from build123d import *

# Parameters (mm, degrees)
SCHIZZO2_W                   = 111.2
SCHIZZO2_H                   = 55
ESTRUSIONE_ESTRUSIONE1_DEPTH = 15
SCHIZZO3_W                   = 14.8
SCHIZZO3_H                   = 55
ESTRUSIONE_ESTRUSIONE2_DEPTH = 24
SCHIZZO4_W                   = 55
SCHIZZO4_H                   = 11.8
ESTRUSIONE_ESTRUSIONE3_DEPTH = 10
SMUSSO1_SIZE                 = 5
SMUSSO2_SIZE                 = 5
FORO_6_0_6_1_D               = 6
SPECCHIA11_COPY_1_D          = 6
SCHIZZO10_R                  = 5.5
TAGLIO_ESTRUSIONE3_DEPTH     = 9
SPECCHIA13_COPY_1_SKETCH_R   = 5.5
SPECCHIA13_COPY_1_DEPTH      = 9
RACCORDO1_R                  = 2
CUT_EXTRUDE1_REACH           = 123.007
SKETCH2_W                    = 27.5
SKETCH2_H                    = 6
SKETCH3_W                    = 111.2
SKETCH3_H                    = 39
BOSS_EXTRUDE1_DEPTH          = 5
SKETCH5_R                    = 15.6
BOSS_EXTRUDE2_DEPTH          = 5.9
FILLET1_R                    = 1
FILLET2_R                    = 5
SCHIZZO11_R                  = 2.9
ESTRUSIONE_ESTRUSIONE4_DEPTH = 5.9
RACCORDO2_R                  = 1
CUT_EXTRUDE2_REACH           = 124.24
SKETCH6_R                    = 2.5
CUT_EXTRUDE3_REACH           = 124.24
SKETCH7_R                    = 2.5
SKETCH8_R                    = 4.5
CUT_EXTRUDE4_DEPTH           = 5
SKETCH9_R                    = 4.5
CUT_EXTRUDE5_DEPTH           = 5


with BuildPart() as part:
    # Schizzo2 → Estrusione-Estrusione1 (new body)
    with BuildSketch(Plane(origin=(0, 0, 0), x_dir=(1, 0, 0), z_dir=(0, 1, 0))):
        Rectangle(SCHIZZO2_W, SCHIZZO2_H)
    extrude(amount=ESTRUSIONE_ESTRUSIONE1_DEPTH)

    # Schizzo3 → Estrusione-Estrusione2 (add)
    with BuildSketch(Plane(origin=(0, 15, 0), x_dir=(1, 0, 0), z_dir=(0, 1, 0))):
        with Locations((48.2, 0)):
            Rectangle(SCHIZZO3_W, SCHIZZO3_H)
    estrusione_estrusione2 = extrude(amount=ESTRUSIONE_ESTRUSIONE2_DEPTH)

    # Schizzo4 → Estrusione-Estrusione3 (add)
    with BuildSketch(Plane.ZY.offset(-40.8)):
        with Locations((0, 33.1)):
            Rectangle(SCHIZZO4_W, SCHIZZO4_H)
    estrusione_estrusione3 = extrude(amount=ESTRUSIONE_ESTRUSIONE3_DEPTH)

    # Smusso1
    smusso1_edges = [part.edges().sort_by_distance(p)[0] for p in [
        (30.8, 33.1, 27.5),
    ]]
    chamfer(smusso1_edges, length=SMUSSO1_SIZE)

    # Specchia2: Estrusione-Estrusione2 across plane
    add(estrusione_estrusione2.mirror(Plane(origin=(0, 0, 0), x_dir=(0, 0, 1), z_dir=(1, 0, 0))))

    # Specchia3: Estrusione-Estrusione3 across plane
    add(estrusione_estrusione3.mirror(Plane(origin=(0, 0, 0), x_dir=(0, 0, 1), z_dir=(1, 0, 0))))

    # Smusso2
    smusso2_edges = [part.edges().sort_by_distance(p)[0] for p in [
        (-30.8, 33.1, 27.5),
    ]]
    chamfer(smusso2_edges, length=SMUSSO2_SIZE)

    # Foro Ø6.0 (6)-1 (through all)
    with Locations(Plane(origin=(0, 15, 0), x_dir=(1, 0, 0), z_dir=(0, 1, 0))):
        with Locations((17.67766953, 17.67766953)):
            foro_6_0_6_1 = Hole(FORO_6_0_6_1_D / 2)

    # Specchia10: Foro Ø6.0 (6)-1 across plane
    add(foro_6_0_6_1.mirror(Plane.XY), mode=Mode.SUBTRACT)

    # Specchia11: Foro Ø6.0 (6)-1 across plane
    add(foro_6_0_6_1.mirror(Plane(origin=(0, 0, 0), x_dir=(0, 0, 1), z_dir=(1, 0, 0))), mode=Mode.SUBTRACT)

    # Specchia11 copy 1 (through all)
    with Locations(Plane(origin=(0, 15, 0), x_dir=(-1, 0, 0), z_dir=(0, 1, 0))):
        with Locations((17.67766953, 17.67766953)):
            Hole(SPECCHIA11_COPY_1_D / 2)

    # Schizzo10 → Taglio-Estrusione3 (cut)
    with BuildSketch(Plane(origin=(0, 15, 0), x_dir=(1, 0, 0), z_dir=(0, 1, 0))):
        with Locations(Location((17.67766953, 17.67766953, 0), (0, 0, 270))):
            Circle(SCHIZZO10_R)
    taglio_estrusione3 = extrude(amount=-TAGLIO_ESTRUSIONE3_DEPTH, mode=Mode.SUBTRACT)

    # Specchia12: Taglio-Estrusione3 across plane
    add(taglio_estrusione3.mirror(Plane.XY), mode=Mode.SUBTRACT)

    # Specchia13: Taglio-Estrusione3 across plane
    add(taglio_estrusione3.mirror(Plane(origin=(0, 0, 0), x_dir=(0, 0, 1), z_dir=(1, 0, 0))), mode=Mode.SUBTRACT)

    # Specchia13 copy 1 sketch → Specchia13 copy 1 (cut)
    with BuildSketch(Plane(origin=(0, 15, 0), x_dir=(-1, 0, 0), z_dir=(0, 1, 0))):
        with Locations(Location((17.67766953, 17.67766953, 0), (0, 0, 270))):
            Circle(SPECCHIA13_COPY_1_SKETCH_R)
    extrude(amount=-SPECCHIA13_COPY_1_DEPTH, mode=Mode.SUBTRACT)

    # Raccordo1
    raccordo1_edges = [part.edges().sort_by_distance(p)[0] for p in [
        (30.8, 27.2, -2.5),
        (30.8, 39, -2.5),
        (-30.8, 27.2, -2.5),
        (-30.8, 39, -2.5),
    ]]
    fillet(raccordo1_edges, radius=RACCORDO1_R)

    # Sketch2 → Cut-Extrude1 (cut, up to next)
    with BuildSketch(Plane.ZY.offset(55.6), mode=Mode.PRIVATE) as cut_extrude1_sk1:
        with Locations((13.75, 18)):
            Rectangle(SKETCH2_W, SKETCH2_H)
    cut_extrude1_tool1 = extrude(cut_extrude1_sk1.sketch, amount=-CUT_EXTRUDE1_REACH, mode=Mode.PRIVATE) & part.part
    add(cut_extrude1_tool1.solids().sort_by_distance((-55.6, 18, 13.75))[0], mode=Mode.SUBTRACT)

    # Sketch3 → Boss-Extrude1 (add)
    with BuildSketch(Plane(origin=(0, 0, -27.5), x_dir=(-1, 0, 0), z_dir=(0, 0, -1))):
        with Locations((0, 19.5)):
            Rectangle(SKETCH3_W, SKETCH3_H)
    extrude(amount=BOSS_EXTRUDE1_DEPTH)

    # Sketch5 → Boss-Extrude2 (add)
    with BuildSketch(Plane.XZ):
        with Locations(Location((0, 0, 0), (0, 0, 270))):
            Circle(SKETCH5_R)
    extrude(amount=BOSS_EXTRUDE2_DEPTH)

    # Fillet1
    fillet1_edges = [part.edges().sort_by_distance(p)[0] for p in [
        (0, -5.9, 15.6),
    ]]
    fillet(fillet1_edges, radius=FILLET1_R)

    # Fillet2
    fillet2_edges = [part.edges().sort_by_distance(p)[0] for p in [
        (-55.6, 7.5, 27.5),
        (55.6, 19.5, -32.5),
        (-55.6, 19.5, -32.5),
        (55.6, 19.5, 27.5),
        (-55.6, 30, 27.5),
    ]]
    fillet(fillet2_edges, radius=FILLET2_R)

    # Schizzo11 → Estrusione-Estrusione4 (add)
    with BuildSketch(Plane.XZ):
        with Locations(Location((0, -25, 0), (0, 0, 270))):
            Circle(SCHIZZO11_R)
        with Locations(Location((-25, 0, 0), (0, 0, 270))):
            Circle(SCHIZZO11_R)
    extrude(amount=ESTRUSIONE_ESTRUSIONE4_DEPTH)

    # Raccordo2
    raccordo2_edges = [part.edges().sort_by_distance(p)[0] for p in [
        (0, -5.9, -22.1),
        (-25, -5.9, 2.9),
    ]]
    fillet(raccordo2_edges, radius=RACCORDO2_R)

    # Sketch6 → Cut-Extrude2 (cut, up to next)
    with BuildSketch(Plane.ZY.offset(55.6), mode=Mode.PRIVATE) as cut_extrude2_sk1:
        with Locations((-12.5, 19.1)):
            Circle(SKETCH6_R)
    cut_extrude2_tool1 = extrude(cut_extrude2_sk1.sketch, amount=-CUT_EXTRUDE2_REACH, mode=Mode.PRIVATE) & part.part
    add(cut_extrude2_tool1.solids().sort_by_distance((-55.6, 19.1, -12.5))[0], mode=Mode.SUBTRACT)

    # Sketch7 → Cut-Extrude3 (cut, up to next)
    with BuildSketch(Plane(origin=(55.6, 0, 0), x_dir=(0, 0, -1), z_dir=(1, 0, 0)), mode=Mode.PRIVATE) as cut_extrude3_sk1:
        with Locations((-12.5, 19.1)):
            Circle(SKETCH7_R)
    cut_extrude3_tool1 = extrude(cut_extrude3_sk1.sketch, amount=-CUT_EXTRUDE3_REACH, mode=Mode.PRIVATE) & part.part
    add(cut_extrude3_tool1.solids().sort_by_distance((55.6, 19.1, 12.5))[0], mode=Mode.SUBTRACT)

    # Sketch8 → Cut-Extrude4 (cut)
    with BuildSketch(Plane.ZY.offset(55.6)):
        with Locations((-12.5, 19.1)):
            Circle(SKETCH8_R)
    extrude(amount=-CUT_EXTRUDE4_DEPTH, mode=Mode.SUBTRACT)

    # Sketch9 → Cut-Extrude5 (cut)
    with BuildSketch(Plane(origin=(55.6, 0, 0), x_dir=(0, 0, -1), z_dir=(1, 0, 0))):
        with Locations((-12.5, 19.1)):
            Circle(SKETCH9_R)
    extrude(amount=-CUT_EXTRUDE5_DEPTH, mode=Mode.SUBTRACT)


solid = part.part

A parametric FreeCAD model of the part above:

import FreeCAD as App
import Part
import Sketcher

V = App.Vector


def edges_at(feature, points):
    """Names of the edges that pass closest to the given points."""
    edges = feature.Shape.Edges
    near = lambda p: min(range(len(edges)), key=lambda i: edges[i].distToShape(Part.Vertex(*p))[0])
    return sorted({f"Edge{near(p) + 1}" for p in points})


def add_polygon(sketch, points):
    """Adds a closed chain of lines whose ends are joined by coincident constraints."""
    first, n = sketch.GeometryCount, len(points)
    for a, b in zip(points, points[1:] + points[:1]):
        sketch.addGeometry(Part.LineSegment(App.Vector(*a, 0), App.Vector(*b, 0)), False)
    for i in range(n):
        sketch.addConstraint(Sketcher.Constraint("Coincident", first + i, 2, first + (i + 1) % n, 1))

doc = App.newDocument("Part")
body = doc.addObject("PartDesign::Body", "Body")

# Sketch on XZ plane
sketch1 = body.newObject("Sketcher::SketchObject", "Sketch")
sketch1.AttachmentSupport = (doc.getObject("XZ_Plane"), [""])
sketch1.MapMode = "FlatFace"
add_polygon(sketch1, [(-56, -28), (-56, 28), (56, 28), (56, -28)])  # lines 0-3
sketch1.addConstraint(Sketcher.Constraint("Vertical", 0))
sketch1.addConstraint(Sketcher.Constraint("Horizontal", 1))
sketch1.addConstraint(Sketcher.Constraint("Vertical", 2))
sketch1.addConstraint(Sketcher.Constraint("Horizontal", 3))
sketch1.addConstraint(Sketcher.Constraint("Symmetric", 0, 2, 2, 2, -1, 1))
sketch1.addConstraint(Sketcher.Constraint("DistanceY", 0, 1, 0, 2, 55.0))
sketch1.addConstraint(Sketcher.Constraint("DistanceX", 1, 1, 1, 2, 111.2))
pad1 = body.newObject("PartDesign::Pad", "Pad")
pad1.Profile = sketch1
pad1.Length = 15
pad1.Reversed = True

# Sketch on XZ plane
sketch2 = body.newObject("Sketcher::SketchObject", "Sketch001")
sketch2.AttachmentSupport = (doc.getObject("XZ_Plane"), [""])
sketch2.MapMode = "FlatFace"
sketch2.AttachmentOffset = App.Placement(V(0, 0, -15), App.Rotation())
add_polygon(sketch2, [(41, -28), (41, 28), (56, 28), (56, -28)])  # lines 0-3
sketch2.addConstraint(Sketcher.Constraint("Vertical", 0))
sketch2.addConstraint(Sketcher.Constraint("Horizontal", 1))
sketch2.addConstraint(Sketcher.Constraint("Vertical", 2))
sketch2.addConstraint(Sketcher.Constraint("Horizontal", 3))
sketch2.addConstraint(Sketcher.Constraint("DistanceY", 0, 1, 0, 2, 55.0))
sketch2.addConstraint(Sketcher.Constraint("DistanceX", 1, 1, 1, 2, 14.8))
sketch2.addConstraint(Sketcher.Constraint("DistanceX", -1, 1, 0, 2, 40.8))
sketch2.addConstraint(Sketcher.Constraint("DistanceY", -1, 1, 0, 2, 27.5))
pad2 = body.newObject("PartDesign::Pad", "Pad001")
pad2.Profile = sketch2
pad2.Length = 24
pad2.Reversed = True

# Sketch on YZ plane
sketch3 = body.newObject("Sketcher::SketchObject", "Sketch002")
sketch3.AttachmentSupport = (doc.getObject("YZ_Plane"), [""])
sketch3.MapMode = "FlatFace"
sketch3.AttachmentOffset = App.Placement(V(0, 0, 40.8), App.Rotation())
add_polygon(sketch3, [(39, -28), (27, -28), (27, 28), (39, 28)])  # lines 0-3
sketch3.addConstraint(Sketcher.Constraint("Horizontal", 0))
sketch3.addConstraint(Sketcher.Constraint("Vertical", 1))
sketch3.addConstraint(Sketcher.Constraint("Horizontal", 2))
sketch3.addConstraint(Sketcher.Constraint("Vertical", 3))
sketch3.addConstraint(Sketcher.Constraint("DistanceY", 1, 1, 1, 2, 55.0))
sketch3.addConstraint(Sketcher.Constraint("DistanceX", 0, 2, 0, 1, 11.8))
sketch3.addConstraint(Sketcher.Constraint("DistanceX", -1, 1, 2, 2, 39.0))
sketch3.addConstraint(Sketcher.Constraint("DistanceY", 0, 2, -1, 1, 27.5))
pad3 = body.newObject("PartDesign::Pad", "Pad002")
pad3.Profile = sketch3
pad3.Length = 10
pad3.Reversed = True
doc.recompute()

chamfer = body.newObject("PartDesign::Chamfer", "Chamfer")
chamfer.Base = (pad3, edges_at(pad3, [(30.8, 33.1, 27.5)]))
chamfer.Size = 5
doc.recompute()

mirrored = body.newObject("PartDesign::Mirrored", "Mirrored")
mirrored.Originals = [pad2]
mirrored.MirrorPlane = (doc.getObject("YZ_Plane"), [""])
body.Tip = mirrored
doc.recompute()

mirrored2 = body.newObject("PartDesign::Mirrored", "Mirrored001")
mirrored2.Originals = [pad3]
mirrored2.MirrorPlane = (doc.getObject("YZ_Plane"), [""])
body.Tip = mirrored2
doc.recompute()

chamfer2 = body.newObject("PartDesign::Chamfer", "Chamfer001")
chamfer2.Base = (mirrored2, edges_at(mirrored2, [(-30.8, 33.1, 27.5)]))
chamfer2.Size = 5

# Sketch on XZ plane
sketch4 = body.newObject("Sketcher::SketchObject", "Sketch003")
sketch4.AttachmentSupport = (doc.getObject("XZ_Plane"), [""])
sketch4.MapMode = "FlatFace"
sketch4.AttachmentOffset = App.Placement(V(0, 0, -15), App.Rotation())
sketch4.addGeometry(Part.Circle(V(17.7, -17.7, 0), V(0, 0, 1), 3), False)
sketch4.addConstraint(Sketcher.Constraint("Diameter", 0, 6.0))
sketch4.addConstraint(Sketcher.Constraint("DistanceX", -1, 1, 0, 3, 17.67767))
sketch4.addConstraint(Sketcher.Constraint("DistanceY", 0, 3, -1, 1, 17.67767))
doc.recompute()
hole = body.newObject("PartDesign::Hole", "Hole")
hole.Profile = sketch4
hole.ThreadType = "None"
hole.Diameter = 6
hole.DepthType = "ThroughAll"
hole.Reversed = True
doc.recompute()

mirrored3 = body.newObject("PartDesign::Mirrored", "Mirrored002")
mirrored3.Originals = [hole]
mirrored3.MirrorPlane = (doc.getObject("XY_Plane"), [""])
body.Tip = mirrored3
doc.recompute()

mirrored4 = body.newObject("PartDesign::Mirrored", "Mirrored003")
mirrored4.Originals = [hole]
mirrored4.MirrorPlane = (doc.getObject("YZ_Plane"), [""])
body.Tip = mirrored4

# Sketch on XZ plane
sketch5 = body.newObject("Sketcher::SketchObject", "Sketch004")
sketch5.AttachmentSupport = (doc.getObject("XZ_Plane"), [""])
sketch5.MapMode = "FlatFace"
sketch5.AttachmentOffset = App.Placement(V(0, 0, -15), App.Rotation())
sketch5.addGeometry(Part.Circle(V(-17.7, 17.7, 0), V(0, 0, 1), 3), False)
sketch5.addConstraint(Sketcher.Constraint("Diameter", 0, 6.0))
sketch5.addConstraint(Sketcher.Constraint("DistanceX", 0, 3, -1, 1, 17.67767))
sketch5.addConstraint(Sketcher.Constraint("DistanceY", -1, 1, 0, 3, 17.67767))
doc.recompute()
hole2 = body.newObject("PartDesign::Hole", "Hole001")
hole2.Profile = sketch5
hole2.ThreadType = "None"
hole2.Diameter = 6
hole2.DepthType = "ThroughAll"
hole2.Reversed = True

# Sketch on XZ plane
sketch6 = body.newObject("Sketcher::SketchObject", "Sketch005")
sketch6.AttachmentSupport = (doc.getObject("XZ_Plane"), [""])
sketch6.MapMode = "FlatFace"
sketch6.AttachmentOffset = App.Placement(V(0, 0, -15), App.Rotation())
sketch6.addGeometry(Part.Circle(V(18, -18, 0), V(0, 0, 1), 6), False)
sketch6.addConstraint(Sketcher.Constraint("Diameter", 0, 11.0))
sketch6.addConstraint(Sketcher.Constraint("DistanceX", -1, 1, 0, 3, 17.67767))
sketch6.addConstraint(Sketcher.Constraint("DistanceY", 0, 3, -1, 1, 17.67767))
pocket1 = body.newObject("PartDesign::Pocket", "Pocket")
pocket1.Profile = sketch6
pocket1.Length = 9
pocket1.Reversed = True
doc.recompute()

mirrored5 = body.newObject("PartDesign::Mirrored", "Mirrored004")
mirrored5.Originals = [pocket1]
mirrored5.MirrorPlane = (doc.getObject("XY_Plane"), [""])
body.Tip = mirrored5
doc.recompute()

mirrored6 = body.newObject("PartDesign::Mirrored", "Mirrored005")
mirrored6.Originals = [pocket1]
mirrored6.MirrorPlane = (doc.getObject("YZ_Plane"), [""])
body.Tip = mirrored6

# Sketch on XZ plane
sketch7 = body.newObject("Sketcher::SketchObject", "Sketch006")
sketch7.AttachmentSupport = (doc.getObject("XZ_Plane"), [""])
sketch7.MapMode = "FlatFace"
sketch7.AttachmentOffset = App.Placement(V(0, 0, -15), App.Rotation())
sketch7.addGeometry(Part.Circle(V(-18, 18, 0), V(0, 0, 1), 6), False)
sketch7.addConstraint(Sketcher.Constraint("Diameter", 0, 11.0))
sketch7.addConstraint(Sketcher.Constraint("DistanceX", 0, 3, -1, 1, 17.67767))
sketch7.addConstraint(Sketcher.Constraint("DistanceY", -1, 1, 0, 3, 17.67767))
pocket2 = body.newObject("PartDesign::Pocket", "Pocket001")
pocket2.Profile = sketch7
pocket2.Length = 9
pocket2.Reversed = True
doc.recompute()

fillet = body.newObject("PartDesign::Fillet", "Fillet")
fillet.Base = (pocket2, edges_at(pocket2, [
    (30.8, 27.2, -2.5),
    (30.8, 39, -2.5),
    (-30.8, 27.2, -2.5),
    (-30.8, 39, -2.5),
]))
fillet.Radius = 2

# Sketch on YZ plane
sketch8 = body.newObject("Sketcher::SketchObject", "Sketch007")
sketch8.AttachmentSupport = (doc.getObject("YZ_Plane"), [""])
sketch8.MapMode = "FlatFace"
sketch8.AttachmentOffset = App.Placement(V(0, 0, -55.6), App.Rotation())
add_polygon(sketch8, [(21, 0), (15, 0), (15, 28), (21, 28)])  # lines 0-3
sketch8.addConstraint(Sketcher.Constraint("Horizontal", 0))
sketch8.addConstraint(Sketcher.Constraint("Vertical", 1))
sketch8.addConstraint(Sketcher.Constraint("Horizontal", 2))
sketch8.addConstraint(Sketcher.Constraint("Vertical", 3))
sketch8.addConstraint(Sketcher.Constraint("PointOnObject", 0, 2, -1))
sketch8.addConstraint(Sketcher.Constraint("DistanceX", 0, 2, 0, 1, 6.0))
sketch8.addConstraint(Sketcher.Constraint("DistanceY", 1, 1, 1, 2, 27.5))
sketch8.addConstraint(Sketcher.Constraint("DistanceX", -1, 1, 0, 2, 15.0))
pocket3 = body.newObject("PartDesign::Pocket", "Pocket002")
pocket3.Profile = sketch8
pocket3.Type = "UpToFirst"
pocket3.Reversed = True

# Sketch on XY plane
sketch9 = body.newObject("Sketcher::SketchObject", "Sketch008")
sketch9.AttachmentSupport = (doc.getObject("XY_Plane"), [""])
sketch9.MapMode = "FlatFace"
sketch9.AttachmentOffset = App.Placement(V(0, 0, -27.5), App.Rotation())
add_polygon(sketch9, [(56, 39), (56, 0), (-56, 0), (-56, 39)])  # lines 0-3
sketch9.addConstraint(Sketcher.Constraint("Vertical", 0))
sketch9.addConstraint(Sketcher.Constraint("Horizontal", 1))
sketch9.addConstraint(Sketcher.Constraint("Vertical", 2))
sketch9.addConstraint(Sketcher.Constraint("Horizontal", 3))
sketch9.addConstraint(Sketcher.Constraint("Symmetric", 0, 2, 1, 2, -1, 1))
sketch9.addConstraint(Sketcher.Constraint("DistanceY", 0, 2, 0, 1, 39.0))
sketch9.addConstraint(Sketcher.Constraint("DistanceX", 1, 2, 1, 1, 111.2))
pad4 = body.newObject("PartDesign::Pad", "Pad003")
pad4.Profile = sketch9
pad4.Length = 5
pad4.Reversed = True

# Sketch on XZ plane
sketch10 = body.newObject("Sketcher::SketchObject", "Sketch009")
sketch10.AttachmentSupport = (doc.getObject("XZ_Plane"), [""])
sketch10.MapMode = "FlatFace"
sketch10.addGeometry(Part.Circle(V(0, 0, 0), V(0, 0, 1), 16), False)
sketch10.addConstraint(Sketcher.Constraint("Coincident", 0, 3, -1, 1))
sketch10.addConstraint(Sketcher.Constraint("Diameter", 0, 31.2))
pad5 = body.newObject("PartDesign::Pad", "Pad004")
pad5.Profile = sketch10
pad5.Length = 5.9
doc.recompute()

fillet2 = body.newObject("PartDesign::Fillet", "Fillet001")
fillet2.Base = (pad5, edges_at(pad5, [(0, -5.9, 15.6)]))
fillet2.Radius = 1
doc.recompute()

fillet3 = body.newObject("PartDesign::Fillet", "Fillet002")
fillet3.Base = (fillet2, edges_at(fillet2, [
    (-55.6, 7.5, 27.5),
    (55.6, 19.5, -32.5),
    (-55.6, 19.5, -32.5),
    (55.6, 19.5, 27.5),
    (-55.6, 30, 27.5),
]))
fillet3.Radius = 5

# Sketch on XZ plane
sketch11 = body.newObject("Sketcher::SketchObject", "Sketch010")
sketch11.AttachmentSupport = (doc.getObject("XZ_Plane"), [""])
sketch11.MapMode = "FlatFace"
sketch11.addGeometry(Part.Circle(V(0, -25, 0), V(0, 0, 1), 2.9), False)
sketch11.addGeometry(Part.Circle(V(-25, 0, 0), V(0, 0, 1), 2.9), False)
sketch11.addConstraint(Sketcher.Constraint("Equal", 0, 1))
sketch11.addConstraint(Sketcher.Constraint("PointOnObject", 0, 3, -2))
sketch11.addConstraint(Sketcher.Constraint("PointOnObject", 1, 3, -1))
sketch11.addConstraint(Sketcher.Constraint("Diameter", 0, 5.8))
sketch11.addConstraint(Sketcher.Constraint("DistanceY", 0, 3, -1, 1, 25.0))
sketch11.addConstraint(Sketcher.Constraint("DistanceX", 1, 3, -1, 1, 25.0))
pad6 = body.newObject("PartDesign::Pad", "Pad005")
pad6.Profile = sketch11
pad6.Length = 5.9
doc.recompute()

fillet4 = body.newObject("PartDesign::Fillet", "Fillet003")
fillet4.Base = (pad6, edges_at(pad6, [(0, -5.9, -22.1), (-25, -5.9, 2.9)]))
fillet4.Radius = 1

# Sketch on YZ plane
sketch12 = body.newObject("Sketcher::SketchObject", "Sketch011")
sketch12.AttachmentSupport = (doc.getObject("YZ_Plane"), [""])
sketch12.MapMode = "FlatFace"
sketch12.AttachmentOffset = App.Placement(V(0, 0, -55.6), App.Rotation())
sketch12.addGeometry(Part.Circle(V(19.1, -12.5, 0), V(0, 0, 1), 2.5), False)
sketch12.addConstraint(Sketcher.Constraint("Diameter", 0, 5.0))
sketch12.addConstraint(Sketcher.Constraint("DistanceX", -1, 1, 0, 3, 19.1))
sketch12.addConstraint(Sketcher.Constraint("DistanceY", 0, 3, -1, 1, 12.5))
pocket4 = body.newObject("PartDesign::Pocket", "Pocket003")
pocket4.Profile = sketch12
pocket4.Type = "UpToFirst"
pocket4.Reversed = True

# Sketch on YZ plane
sketch13 = body.newObject("Sketcher::SketchObject", "Sketch012")
sketch13.AttachmentSupport = (doc.getObject("YZ_Plane"), [""])
sketch13.MapMode = "FlatFace"
sketch13.AttachmentOffset = App.Placement(V(0, 0, 55.6), App.Rotation())
sketch13.addGeometry(Part.Circle(V(19.1, 12.5, 0), V(0, 0, 1), 2.5), False)
sketch13.addConstraint(Sketcher.Constraint("Diameter", 0, 5.0))
sketch13.addConstraint(Sketcher.Constraint("DistanceX", -1, 1, 0, 3, 19.1))
sketch13.addConstraint(Sketcher.Constraint("DistanceY", -1, 1, 0, 3, 12.5))
pocket5 = body.newObject("PartDesign::Pocket", "Pocket004")
pocket5.Profile = sketch13
pocket5.Type = "UpToFirst"

# Sketch on YZ plane
sketch14 = body.newObject("Sketcher::SketchObject", "Sketch013")
sketch14.AttachmentSupport = (doc.getObject("YZ_Plane"), [""])
sketch14.MapMode = "FlatFace"
sketch14.AttachmentOffset = App.Placement(V(0, 0, -55.6), App.Rotation())
sketch14.addGeometry(Part.Circle(V(19.1, -12.5, 0), V(0, 0, 1), 4.5), False)
sketch14.addConstraint(Sketcher.Constraint("Diameter", 0, 9.0))
sketch14.addConstraint(Sketcher.Constraint("DistanceX", -1, 1, 0, 3, 19.1))
sketch14.addConstraint(Sketcher.Constraint("DistanceY", 0, 3, -1, 1, 12.5))
pocket6 = body.newObject("PartDesign::Pocket", "Pocket005")
pocket6.Profile = sketch14
pocket6.Length = 5
pocket6.Reversed = True

# Sketch on YZ plane
sketch15 = body.newObject("Sketcher::SketchObject", "Sketch014")
sketch15.AttachmentSupport = (doc.getObject("YZ_Plane"), [""])
sketch15.MapMode = "FlatFace"
sketch15.AttachmentOffset = App.Placement(V(0, 0, 55.6), App.Rotation())
sketch15.addGeometry(Part.Circle(V(19.1, 12.5, 0), V(0, 0, 1), 4.5), False)
sketch15.addConstraint(Sketcher.Constraint("Diameter", 0, 9.0))
sketch15.addConstraint(Sketcher.Constraint("DistanceX", -1, 1, 0, 3, 19.1))
sketch15.addConstraint(Sketcher.Constraint("DistanceY", -1, 1, 0, 3, 12.5))
pocket7 = body.newObject("PartDesign::Pocket", "Pocket006")
pocket7.Profile = sketch15
pocket7.Length = 5

doc.recompute()
